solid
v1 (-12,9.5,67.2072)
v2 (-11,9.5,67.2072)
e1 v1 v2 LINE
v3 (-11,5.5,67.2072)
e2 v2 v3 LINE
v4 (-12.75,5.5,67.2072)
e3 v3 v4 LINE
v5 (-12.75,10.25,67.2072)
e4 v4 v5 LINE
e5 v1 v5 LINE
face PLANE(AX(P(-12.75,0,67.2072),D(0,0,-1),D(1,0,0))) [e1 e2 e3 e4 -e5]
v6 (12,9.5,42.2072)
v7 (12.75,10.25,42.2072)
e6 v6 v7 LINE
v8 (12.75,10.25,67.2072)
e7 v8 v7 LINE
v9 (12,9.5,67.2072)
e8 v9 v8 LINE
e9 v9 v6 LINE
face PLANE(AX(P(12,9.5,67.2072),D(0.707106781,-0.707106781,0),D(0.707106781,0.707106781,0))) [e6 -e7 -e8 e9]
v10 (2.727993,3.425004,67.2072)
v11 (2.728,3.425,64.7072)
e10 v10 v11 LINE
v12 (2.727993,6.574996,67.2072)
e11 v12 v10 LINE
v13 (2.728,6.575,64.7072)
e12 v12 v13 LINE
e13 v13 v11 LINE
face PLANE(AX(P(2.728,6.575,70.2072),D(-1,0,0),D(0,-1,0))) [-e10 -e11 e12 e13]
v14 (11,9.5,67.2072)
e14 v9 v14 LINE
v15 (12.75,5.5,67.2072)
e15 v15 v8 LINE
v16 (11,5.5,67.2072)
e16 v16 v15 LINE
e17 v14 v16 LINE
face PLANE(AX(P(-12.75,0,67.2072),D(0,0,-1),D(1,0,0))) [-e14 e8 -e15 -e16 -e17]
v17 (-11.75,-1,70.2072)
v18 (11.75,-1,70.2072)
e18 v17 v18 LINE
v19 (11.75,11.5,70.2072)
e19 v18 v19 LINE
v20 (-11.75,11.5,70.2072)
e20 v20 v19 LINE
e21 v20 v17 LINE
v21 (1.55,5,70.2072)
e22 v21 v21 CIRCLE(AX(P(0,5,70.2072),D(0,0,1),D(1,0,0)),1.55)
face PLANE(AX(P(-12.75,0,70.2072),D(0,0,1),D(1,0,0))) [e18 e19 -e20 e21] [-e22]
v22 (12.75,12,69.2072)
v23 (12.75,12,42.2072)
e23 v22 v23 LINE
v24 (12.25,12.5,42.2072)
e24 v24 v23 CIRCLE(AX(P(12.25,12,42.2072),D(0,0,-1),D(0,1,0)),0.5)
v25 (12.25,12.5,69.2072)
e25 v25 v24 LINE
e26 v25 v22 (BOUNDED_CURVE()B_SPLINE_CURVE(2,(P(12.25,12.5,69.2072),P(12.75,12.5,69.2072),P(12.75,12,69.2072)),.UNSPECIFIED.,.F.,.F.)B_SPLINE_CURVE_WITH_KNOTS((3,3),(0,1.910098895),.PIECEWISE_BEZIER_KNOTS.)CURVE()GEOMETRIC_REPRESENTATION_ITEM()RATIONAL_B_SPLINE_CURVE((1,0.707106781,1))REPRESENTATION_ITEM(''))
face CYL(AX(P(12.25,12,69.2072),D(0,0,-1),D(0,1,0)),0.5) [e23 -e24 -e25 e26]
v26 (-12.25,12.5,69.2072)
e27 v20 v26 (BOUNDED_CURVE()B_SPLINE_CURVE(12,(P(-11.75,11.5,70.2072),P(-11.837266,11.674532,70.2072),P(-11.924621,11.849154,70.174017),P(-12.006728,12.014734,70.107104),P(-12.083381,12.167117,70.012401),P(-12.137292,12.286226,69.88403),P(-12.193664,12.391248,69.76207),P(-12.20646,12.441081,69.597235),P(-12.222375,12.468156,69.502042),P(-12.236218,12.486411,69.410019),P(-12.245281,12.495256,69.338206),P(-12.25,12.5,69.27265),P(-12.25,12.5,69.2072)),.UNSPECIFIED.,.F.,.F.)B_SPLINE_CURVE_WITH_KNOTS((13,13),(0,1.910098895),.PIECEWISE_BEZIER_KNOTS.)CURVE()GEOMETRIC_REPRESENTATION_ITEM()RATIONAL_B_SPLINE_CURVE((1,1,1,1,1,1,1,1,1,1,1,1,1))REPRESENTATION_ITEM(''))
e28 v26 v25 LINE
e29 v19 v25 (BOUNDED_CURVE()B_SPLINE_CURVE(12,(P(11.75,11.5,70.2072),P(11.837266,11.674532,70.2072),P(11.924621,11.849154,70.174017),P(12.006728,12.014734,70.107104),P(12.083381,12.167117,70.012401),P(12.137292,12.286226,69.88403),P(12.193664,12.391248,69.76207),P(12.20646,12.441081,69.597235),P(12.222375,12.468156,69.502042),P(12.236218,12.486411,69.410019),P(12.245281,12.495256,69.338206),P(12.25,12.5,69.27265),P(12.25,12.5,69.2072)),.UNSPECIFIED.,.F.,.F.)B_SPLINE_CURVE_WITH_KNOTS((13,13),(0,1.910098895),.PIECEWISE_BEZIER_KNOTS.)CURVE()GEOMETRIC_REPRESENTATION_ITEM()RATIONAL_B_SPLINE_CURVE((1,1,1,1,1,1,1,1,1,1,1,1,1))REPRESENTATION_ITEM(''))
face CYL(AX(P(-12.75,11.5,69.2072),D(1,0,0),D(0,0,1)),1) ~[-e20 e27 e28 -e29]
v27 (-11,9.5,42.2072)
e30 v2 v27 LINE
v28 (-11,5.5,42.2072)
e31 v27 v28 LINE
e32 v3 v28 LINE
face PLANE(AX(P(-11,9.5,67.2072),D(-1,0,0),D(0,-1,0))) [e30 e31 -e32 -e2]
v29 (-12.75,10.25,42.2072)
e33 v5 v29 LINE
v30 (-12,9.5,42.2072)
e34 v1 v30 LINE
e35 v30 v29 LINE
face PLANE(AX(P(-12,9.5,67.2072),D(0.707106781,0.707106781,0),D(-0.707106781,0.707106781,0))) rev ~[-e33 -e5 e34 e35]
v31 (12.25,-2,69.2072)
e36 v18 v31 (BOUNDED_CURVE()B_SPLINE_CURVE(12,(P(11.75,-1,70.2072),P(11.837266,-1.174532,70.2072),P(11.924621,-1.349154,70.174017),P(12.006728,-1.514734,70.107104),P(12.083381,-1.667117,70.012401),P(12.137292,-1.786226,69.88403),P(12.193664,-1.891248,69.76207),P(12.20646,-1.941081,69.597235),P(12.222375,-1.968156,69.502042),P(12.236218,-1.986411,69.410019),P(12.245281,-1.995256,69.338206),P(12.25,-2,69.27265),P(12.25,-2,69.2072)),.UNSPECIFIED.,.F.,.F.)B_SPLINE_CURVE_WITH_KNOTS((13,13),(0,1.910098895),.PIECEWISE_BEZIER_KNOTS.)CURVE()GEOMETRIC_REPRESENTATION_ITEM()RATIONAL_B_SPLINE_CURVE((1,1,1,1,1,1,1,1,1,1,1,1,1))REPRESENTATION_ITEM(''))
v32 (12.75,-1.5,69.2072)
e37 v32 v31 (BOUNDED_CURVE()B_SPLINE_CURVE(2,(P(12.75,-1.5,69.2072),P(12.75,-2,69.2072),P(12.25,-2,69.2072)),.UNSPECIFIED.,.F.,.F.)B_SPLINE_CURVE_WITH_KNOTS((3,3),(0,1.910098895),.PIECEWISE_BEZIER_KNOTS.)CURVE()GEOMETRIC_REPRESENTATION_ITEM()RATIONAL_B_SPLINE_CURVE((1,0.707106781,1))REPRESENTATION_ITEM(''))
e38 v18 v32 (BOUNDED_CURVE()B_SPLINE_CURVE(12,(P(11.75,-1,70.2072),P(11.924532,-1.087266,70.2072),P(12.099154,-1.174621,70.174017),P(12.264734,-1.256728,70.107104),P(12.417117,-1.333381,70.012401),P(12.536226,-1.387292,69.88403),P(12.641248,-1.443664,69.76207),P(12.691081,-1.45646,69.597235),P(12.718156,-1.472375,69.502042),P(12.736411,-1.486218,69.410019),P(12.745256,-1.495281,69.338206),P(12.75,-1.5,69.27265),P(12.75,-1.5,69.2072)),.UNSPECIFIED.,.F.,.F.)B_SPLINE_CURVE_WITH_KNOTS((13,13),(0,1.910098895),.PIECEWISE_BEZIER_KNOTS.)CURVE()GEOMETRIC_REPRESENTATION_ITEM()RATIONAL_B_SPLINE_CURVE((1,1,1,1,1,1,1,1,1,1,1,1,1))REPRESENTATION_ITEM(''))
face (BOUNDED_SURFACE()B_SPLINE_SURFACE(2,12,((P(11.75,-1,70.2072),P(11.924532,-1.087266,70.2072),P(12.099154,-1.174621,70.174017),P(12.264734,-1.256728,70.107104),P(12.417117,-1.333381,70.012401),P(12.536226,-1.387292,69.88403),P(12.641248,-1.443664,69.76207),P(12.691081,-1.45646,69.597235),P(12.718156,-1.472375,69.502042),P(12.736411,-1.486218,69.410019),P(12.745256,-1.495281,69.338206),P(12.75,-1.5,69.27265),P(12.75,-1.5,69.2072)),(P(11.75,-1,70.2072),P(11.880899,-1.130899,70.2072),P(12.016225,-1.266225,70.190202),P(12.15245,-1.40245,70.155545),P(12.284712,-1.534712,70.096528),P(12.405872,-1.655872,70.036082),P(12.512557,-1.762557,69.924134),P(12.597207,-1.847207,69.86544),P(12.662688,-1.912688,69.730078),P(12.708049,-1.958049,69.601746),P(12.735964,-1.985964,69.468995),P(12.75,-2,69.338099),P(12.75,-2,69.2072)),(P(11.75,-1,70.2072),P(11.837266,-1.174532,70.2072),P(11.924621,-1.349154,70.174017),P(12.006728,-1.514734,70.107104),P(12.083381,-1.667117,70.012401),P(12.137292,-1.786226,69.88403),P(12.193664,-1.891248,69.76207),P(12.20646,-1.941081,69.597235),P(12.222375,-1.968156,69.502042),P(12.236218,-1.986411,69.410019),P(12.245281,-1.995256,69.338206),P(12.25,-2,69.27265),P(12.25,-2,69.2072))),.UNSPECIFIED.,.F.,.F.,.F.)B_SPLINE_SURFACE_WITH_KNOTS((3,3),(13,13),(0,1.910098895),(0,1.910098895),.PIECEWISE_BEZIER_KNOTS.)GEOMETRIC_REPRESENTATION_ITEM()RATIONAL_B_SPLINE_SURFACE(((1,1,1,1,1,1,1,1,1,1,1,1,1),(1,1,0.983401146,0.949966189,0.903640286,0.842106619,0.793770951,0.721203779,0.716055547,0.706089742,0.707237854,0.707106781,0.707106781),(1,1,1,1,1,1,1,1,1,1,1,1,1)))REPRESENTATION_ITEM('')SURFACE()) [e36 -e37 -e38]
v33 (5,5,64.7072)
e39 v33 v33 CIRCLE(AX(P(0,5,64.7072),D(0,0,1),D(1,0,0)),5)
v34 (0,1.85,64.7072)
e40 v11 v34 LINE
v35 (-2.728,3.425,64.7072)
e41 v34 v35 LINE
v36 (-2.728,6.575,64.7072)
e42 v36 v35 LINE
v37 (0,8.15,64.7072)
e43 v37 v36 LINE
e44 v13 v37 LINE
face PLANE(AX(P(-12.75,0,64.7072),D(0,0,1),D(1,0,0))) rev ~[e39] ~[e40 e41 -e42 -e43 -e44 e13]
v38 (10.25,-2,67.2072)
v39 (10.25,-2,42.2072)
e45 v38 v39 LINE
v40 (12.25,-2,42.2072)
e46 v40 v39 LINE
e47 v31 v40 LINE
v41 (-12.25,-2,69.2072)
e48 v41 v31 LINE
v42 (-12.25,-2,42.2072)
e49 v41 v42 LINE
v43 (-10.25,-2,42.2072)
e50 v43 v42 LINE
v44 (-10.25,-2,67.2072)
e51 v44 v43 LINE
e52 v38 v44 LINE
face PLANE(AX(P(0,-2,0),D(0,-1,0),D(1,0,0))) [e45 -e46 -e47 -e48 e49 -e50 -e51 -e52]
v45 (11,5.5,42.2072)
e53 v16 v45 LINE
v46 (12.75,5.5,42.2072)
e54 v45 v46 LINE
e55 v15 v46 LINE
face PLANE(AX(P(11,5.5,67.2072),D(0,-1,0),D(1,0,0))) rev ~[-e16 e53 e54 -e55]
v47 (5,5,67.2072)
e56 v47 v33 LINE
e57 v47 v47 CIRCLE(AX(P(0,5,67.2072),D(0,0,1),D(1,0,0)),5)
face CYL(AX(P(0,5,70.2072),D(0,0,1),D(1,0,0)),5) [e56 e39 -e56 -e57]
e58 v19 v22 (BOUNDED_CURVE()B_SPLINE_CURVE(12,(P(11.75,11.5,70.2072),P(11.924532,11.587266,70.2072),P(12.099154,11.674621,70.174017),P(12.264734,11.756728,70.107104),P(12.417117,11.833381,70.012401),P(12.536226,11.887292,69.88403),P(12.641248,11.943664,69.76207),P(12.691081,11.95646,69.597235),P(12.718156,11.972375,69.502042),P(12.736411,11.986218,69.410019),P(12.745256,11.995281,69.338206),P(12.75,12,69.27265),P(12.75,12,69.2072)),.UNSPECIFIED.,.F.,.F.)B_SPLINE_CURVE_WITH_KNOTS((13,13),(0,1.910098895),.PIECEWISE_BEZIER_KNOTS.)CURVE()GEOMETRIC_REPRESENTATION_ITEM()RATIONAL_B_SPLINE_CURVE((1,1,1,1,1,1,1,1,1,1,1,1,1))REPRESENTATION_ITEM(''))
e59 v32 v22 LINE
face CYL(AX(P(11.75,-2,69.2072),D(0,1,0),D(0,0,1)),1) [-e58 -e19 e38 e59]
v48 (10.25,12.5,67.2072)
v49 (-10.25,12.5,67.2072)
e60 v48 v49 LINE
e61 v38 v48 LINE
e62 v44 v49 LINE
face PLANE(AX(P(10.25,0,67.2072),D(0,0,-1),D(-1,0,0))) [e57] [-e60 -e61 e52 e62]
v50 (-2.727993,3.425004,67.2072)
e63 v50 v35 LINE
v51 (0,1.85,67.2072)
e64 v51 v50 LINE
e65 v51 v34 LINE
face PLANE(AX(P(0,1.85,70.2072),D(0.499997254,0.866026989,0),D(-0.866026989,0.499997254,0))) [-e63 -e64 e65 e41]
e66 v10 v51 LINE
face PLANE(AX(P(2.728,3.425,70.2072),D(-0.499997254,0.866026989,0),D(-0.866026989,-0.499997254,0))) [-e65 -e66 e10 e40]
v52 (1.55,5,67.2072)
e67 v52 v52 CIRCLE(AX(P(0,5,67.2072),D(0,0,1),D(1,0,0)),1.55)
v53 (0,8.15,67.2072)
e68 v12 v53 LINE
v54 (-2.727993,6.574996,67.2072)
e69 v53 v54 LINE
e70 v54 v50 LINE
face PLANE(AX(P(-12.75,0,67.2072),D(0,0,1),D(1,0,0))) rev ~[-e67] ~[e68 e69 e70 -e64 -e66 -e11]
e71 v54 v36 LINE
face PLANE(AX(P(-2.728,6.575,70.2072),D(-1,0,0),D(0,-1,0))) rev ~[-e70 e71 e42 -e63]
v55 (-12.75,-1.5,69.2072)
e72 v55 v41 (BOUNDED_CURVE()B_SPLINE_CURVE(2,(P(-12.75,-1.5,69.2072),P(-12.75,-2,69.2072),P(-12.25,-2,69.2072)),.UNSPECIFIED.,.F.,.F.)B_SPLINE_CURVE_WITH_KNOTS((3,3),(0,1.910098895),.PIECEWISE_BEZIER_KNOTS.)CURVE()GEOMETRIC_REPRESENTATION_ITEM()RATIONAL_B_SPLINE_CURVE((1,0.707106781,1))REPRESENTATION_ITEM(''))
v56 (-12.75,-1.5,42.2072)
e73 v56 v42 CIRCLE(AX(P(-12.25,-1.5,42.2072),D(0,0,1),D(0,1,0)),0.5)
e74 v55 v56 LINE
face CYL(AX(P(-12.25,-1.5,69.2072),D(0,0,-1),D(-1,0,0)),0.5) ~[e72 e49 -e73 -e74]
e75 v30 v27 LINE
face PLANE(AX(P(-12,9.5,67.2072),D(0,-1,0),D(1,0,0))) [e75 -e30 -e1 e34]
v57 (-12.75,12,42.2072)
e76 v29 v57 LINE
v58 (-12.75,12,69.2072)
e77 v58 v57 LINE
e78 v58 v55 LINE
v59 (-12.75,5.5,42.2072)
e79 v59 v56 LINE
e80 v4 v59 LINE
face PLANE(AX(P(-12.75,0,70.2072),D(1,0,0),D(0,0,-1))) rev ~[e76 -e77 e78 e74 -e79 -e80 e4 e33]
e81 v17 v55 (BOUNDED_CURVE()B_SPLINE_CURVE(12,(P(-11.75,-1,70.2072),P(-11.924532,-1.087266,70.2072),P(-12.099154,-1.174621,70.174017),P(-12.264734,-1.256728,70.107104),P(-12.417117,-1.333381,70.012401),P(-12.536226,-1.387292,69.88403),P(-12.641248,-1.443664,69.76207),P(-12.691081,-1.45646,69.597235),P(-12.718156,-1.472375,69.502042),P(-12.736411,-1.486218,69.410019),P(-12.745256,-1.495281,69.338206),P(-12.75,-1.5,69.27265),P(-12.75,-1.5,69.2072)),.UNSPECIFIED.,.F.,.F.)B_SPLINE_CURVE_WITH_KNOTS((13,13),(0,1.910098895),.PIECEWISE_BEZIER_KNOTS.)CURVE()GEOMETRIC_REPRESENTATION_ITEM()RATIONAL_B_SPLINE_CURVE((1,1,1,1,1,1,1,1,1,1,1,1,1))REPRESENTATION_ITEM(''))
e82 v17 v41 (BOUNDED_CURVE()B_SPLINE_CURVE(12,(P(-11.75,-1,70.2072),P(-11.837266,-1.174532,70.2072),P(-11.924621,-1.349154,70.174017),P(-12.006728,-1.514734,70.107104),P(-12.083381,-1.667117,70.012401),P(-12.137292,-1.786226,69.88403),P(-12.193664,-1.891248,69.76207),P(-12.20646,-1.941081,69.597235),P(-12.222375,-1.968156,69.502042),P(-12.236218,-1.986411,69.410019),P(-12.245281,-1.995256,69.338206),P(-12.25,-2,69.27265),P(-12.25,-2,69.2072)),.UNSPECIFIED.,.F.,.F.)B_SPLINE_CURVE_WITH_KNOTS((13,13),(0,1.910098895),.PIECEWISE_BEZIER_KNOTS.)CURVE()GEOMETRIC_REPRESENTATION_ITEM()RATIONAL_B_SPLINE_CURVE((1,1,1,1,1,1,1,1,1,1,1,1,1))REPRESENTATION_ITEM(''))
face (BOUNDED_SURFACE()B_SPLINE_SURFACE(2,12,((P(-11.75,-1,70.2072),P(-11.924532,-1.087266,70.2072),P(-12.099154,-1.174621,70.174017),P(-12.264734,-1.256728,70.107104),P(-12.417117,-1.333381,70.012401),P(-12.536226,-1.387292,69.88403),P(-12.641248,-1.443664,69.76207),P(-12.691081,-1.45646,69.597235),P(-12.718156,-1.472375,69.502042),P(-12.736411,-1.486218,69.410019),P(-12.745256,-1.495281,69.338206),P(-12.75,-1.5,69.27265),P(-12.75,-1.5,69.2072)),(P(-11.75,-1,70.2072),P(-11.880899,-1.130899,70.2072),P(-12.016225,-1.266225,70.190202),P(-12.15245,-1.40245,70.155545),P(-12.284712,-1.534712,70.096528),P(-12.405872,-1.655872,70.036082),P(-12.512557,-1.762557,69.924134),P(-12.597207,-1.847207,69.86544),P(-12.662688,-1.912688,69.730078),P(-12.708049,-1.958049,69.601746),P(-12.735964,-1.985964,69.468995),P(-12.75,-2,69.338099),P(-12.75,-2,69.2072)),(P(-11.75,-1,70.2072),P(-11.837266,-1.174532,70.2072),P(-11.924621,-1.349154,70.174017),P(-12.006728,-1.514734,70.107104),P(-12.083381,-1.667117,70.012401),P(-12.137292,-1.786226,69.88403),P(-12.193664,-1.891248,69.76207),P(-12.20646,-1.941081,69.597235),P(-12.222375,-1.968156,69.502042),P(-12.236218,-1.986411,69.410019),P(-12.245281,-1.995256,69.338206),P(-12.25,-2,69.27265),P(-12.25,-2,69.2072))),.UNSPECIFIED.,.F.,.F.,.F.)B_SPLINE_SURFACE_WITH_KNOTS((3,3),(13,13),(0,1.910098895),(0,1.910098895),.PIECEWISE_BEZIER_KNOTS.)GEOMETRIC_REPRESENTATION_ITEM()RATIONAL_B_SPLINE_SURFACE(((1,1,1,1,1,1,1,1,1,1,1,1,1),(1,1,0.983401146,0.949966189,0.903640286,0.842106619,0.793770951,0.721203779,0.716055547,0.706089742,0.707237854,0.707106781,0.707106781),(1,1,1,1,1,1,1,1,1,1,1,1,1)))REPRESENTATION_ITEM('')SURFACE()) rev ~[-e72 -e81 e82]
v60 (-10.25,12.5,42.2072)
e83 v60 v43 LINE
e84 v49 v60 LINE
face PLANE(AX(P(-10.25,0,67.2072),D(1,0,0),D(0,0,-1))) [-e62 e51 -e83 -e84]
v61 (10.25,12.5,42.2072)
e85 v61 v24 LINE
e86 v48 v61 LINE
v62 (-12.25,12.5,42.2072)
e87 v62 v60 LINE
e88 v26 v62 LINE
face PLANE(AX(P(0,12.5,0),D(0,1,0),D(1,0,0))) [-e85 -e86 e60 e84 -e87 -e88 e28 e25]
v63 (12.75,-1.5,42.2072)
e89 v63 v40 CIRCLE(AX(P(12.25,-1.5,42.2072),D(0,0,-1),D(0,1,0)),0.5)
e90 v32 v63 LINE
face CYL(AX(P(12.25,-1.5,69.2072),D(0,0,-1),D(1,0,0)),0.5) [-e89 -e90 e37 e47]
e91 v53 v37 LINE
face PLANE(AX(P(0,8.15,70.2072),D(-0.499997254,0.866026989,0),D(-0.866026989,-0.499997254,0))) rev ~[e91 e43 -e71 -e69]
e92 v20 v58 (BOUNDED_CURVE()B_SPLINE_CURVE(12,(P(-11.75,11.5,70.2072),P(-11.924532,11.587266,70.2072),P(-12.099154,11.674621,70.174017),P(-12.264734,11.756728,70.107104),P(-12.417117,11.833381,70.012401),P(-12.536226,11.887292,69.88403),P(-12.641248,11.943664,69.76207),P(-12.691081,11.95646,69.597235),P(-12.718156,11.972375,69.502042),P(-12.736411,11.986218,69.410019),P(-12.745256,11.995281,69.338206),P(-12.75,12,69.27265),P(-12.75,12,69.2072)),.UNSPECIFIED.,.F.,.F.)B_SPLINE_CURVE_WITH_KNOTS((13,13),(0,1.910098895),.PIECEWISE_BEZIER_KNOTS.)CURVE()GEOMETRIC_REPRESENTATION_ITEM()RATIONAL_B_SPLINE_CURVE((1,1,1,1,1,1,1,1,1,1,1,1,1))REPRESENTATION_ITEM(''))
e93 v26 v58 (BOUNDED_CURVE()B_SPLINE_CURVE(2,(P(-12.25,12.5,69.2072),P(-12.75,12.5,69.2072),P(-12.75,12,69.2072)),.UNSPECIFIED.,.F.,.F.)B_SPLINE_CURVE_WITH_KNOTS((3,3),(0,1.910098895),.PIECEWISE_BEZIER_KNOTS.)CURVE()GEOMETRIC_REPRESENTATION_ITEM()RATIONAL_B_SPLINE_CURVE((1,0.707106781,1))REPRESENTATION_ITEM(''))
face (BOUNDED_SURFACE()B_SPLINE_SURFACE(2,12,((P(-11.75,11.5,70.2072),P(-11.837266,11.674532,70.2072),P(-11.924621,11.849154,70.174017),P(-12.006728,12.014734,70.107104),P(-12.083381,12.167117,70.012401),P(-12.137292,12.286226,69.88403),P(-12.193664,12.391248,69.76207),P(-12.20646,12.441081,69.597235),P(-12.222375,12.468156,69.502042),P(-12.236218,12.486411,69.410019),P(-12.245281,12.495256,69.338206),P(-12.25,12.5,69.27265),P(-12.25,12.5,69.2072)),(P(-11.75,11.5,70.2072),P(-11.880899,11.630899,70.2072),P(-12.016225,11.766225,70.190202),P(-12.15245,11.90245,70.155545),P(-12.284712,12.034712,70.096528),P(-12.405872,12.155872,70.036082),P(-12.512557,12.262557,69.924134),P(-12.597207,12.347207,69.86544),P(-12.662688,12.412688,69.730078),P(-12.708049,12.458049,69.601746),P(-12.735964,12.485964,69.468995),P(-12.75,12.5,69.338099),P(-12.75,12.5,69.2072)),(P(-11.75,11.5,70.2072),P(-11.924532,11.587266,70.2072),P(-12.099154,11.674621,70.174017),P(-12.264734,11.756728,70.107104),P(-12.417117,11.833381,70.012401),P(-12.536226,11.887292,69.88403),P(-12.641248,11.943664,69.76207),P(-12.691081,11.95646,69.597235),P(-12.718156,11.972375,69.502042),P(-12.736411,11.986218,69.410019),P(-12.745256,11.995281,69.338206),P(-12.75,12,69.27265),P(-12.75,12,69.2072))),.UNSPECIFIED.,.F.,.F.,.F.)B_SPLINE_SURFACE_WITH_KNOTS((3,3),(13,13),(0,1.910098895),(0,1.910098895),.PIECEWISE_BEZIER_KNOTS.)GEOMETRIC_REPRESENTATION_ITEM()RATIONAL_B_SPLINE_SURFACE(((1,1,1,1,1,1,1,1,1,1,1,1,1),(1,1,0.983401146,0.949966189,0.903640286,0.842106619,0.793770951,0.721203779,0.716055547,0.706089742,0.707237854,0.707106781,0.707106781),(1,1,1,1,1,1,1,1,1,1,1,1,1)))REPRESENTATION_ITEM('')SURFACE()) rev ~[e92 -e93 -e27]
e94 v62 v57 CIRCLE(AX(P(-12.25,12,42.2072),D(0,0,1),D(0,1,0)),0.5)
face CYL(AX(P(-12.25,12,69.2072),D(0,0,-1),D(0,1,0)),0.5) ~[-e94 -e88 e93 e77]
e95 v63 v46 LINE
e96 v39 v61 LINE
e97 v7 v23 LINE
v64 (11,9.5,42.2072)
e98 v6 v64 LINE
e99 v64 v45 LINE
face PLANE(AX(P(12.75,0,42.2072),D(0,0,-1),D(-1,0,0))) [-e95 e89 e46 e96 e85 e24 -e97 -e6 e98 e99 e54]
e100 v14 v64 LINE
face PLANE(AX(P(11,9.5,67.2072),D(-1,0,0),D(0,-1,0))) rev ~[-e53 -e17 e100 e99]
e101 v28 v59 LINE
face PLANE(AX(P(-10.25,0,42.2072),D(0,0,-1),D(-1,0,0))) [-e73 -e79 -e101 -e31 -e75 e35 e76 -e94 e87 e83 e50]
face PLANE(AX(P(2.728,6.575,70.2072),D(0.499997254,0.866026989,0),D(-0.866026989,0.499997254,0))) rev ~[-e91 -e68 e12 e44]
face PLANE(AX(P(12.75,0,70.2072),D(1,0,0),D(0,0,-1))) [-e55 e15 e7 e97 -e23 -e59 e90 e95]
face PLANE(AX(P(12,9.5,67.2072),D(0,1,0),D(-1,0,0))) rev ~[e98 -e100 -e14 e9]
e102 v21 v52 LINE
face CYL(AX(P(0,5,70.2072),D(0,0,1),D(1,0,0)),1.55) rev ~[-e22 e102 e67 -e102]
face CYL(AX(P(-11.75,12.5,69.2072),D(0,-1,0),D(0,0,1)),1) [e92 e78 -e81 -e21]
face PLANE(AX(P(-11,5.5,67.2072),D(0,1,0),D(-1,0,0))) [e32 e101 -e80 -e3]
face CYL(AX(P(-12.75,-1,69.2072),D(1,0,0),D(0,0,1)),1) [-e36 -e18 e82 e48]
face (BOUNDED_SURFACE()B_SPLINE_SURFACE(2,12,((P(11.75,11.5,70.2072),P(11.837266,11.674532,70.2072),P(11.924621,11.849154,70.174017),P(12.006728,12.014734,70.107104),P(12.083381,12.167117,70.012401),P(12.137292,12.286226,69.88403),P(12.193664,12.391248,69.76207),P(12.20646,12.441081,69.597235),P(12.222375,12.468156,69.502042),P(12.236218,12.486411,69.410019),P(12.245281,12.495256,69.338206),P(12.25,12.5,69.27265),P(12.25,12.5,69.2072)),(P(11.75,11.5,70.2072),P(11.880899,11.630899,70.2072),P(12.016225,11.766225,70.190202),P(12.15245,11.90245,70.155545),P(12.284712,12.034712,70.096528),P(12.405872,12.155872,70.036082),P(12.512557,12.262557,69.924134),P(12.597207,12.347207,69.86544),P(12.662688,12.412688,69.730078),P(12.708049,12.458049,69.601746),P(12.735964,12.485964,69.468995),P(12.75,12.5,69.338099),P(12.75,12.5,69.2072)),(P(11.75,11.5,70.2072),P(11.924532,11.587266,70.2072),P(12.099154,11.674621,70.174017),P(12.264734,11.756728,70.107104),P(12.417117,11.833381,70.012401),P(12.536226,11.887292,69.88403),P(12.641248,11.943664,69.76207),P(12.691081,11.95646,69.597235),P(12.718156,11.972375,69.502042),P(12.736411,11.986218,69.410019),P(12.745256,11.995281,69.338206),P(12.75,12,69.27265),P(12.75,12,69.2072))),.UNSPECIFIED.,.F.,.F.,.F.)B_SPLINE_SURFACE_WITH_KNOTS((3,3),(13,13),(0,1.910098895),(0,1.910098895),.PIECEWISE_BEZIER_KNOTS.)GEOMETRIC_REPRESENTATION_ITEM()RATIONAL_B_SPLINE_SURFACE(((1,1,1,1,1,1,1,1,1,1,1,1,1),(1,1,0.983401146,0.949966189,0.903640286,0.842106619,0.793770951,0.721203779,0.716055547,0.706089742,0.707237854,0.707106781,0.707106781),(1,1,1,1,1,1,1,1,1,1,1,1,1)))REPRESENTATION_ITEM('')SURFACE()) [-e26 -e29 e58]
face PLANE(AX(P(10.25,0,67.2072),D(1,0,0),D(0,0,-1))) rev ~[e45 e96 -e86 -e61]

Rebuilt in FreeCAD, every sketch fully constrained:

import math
import FreeCAD as App
import Part
import Sketcher
Q = App.Units.Quantity


def edges_at(feature, points):
    """Names of the edges that pass closest to the given points."""
    edges = feature.Shape.Edges
    near = lambda p: min(range(len(edges)), key=lambda i: edges[i].distToShape(Part.Vertex(*p))[0])
    return sorted({f"Edge{near(p) + 1}" for p in points})

doc = App.newDocument("Part")
params = doc.addObject("Spreadsheet::Sheet", "Params")
for row, (alias, value) in enumerate([
    ("sketch1_height", "3 mm"),
    ("sketch1_width", "25.5 mm"),
    ("pad1_length", "14 mm"),
    ("sketch2_height", "5.5 mm"),
    ("sketch2_width", "1 mm"),
    ("sketch2_height2", "4 mm"),
    ("sketch2_height3", "14 mm"),
    ("sketch2_width2", "2.5 mm"),
    ("pad2_length", "25 mm"),
    ("sketch3_diameter", "3.1 mm"),
    ("pocket1_length", "5.5 mm"),
    ("sketch4_diameter", "3.1 mm"),
    ("sketch4_height", "3.15 mm"),
    ("pocket2_length", "5.5 mm"),
    ("sketch5_height", "28 mm"),
    ("sketch5_height2", "25 mm"),
    ("sketch5_width", "25.5 mm"),
    ("sketch5_width2", "2.5 mm"),
    ("pad3_length", "2 mm"),
    ("sketch6_diameter", "10 mm"),
    ("sketch6_diameter2", "6.3 mm"),
    ("pad4_length", "5.5 mm"),
    ("sketch7_diameter", "3.1 mm"),
    ("sketch7_height", "3.15 mm"),
    ("pad5_length", "3 mm"),
    ("sketch8_radius", "3.15 mm"),
    ("pad6_length", "5.5 mm"),
    ("sketch9_height", "28 mm"),
    ("sketch9_height2", "25 mm"),
    ("sketch9_width", "25.5 mm"),
    ("sketch9_width2", "2.5 mm"),
    ("pocket3_length", "1.5 mm"),
    ("fillet_radius", "1 mm"),
    ("fillet2_radius", "0.5 mm"),
], start=1):
    params.set(f"A{row}", alias)
    params.set(f"B{row}", "=" + value)
    params.setAlias(f"B{row}", alias)

body = doc.addObject("PartDesign::Body", "Body")

# Sketch on XZ plane
sketch1 = body.newObject("Sketcher::SketchObject", "Sketch")
sketch1.AttachmentSupport = (doc.getObject("XZ_Plane"), [""])
sketch1.MapMode = "FlatFace"
sketch1.addGeometry(Part.LineSegment(App.Vector(12.75, 70.2072, 0), App.Vector(12.75, 67.2072, 0)), False)
sketch1.addGeometry(Part.LineSegment(App.Vector(12.75, 67.2072, 0), App.Vector(-12.75, 67.2072, 0)), False)
sketch1.addGeometry(Part.LineSegment(App.Vector(-12.75, 67.2072, 0), App.Vector(-12.75, 70.2072, 0)), False)
sketch1.addGeometry(Part.LineSegment(App.Vector(-12.75, 70.2072, 0), App.Vector(12.75, 70.2072, 0)), False)
sketch1.addConstraint(Sketcher.Constraint("Coincident", 0, 2, 1, 1))
sketch1.addConstraint(Sketcher.Constraint("Coincident", 1, 2, 2, 1))
sketch1.addConstraint(Sketcher.Constraint("Coincident", 2, 2, 3, 1))
sketch1.addConstraint(Sketcher.Constraint("Coincident", 3, 2, 0, 1))
sketch1.addConstraint(Sketcher.Constraint("Vertical", 0))
sketch1.addConstraint(Sketcher.Constraint("Horizontal", 1))
sketch1.addConstraint(Sketcher.Constraint("Vertical", 2))
sketch1.addConstraint(Sketcher.Constraint("Horizontal", 3))
sketch1.addConstraint(Sketcher.Constraint("DistanceY", 0, 2, 0, 1, 3.0))
sketch1.addConstraint(Sketcher.Constraint("DistanceX", 1, 2, 1, 1, 25.5))
sketch1.addConstraint(Sketcher.Constraint("DistanceX", -1, 1, 0, 2, 12.75))
sketch1.addConstraint(Sketcher.Constraint("DistanceY", -1, 1, 0, 2, 67.2072))
sketch1.setExpression("Constraints[8]", "Params.sketch1_height")
sketch1.setExpression("Constraints[9]", "Params.sketch1_width")
pad1 = body.newObject("PartDesign::Pad", "Pad")
pad1.Profile = sketch1
pad1.setExpression("Length", "Params.pad1_length")
pad1.Reversed = True

# Sketch on XY plane
sketch2 = body.newObject("Sketcher::SketchObject", "Sketch001")
sketch2.AttachmentSupport = (doc.getObject("XY_Plane"), [""])
sketch2.MapMode = "FlatFace"
sketch2.AttachmentOffset = App.Placement(App.Vector(0, 0, 67.2072), App.Rotation())
sketch2.addGeometry(Part.LineSegment(App.Vector(10.25, 14, 0), App.Vector(12.75, 14, 0)), False)
sketch2.addGeometry(Part.LineSegment(App.Vector(12.75, 14, 0), App.Vector(12.75, 10.25, 0)), False)
sketch2.addGeometry(Part.LineSegment(App.Vector(12.75, 10.25, 0), App.Vector(12, 9.5, 0)), False)
sketch2.addGeometry(Part.LineSegment(App.Vector(12, 9.5, 0), App.Vector(11, 9.5, 0)), False)
sketch2.addGeometry(Part.LineSegment(App.Vector(11, 9.5, 0), App.Vector(11, 5.5, 0)), False)
sketch2.addGeometry(Part.LineSegment(App.Vector(11, 5.5, 0), App.Vector(12.75, 5.5, 0)), False)
sketch2.addGeometry(Part.LineSegment(App.Vector(12.75, 5.5, 0), App.Vector(12.75, 0, 0)), False)
sketch2.addGeometry(Part.LineSegment(App.Vector(12.75, 0, 0), App.Vector(10.25, 0, 0)), False)
sketch2.addGeometry(Part.LineSegment(App.Vector(10.25, 0, 0), App.Vector(10.25, 14, 0)), False)
sketch2.addGeometry(Part.LineSegment(App.Vector(-12.75, 10.25, 0), App.Vector(-12.75, 14, 0)), False)
sketch2.addGeometry(Part.LineSegment(App.Vector(-12.75, 14, 0), App.Vector(-10.25, 14, 0)), False)
sketch2.addGeometry(Part.LineSegment(App.Vector(-10.25, 14, 0), App.Vector(-10.25, 0, 0)), False)
sketch2.addGeometry(Part.LineSegment(App.Vector(-10.25, 0, 0), App.Vector(-12.75, 0, 0)), False)
sketch2.addGeometry(Part.LineSegment(App.Vector(-12.75, 0, 0), App.Vector(-12.75, 5.5, 0)), False)
sketch2.addGeometry(Part.LineSegment(App.Vector(-12.75, 5.5, 0), App.Vector(-11, 5.5, 0)), False)
sketch2.addGeometry(Part.LineSegment(App.Vector(-11, 5.5, 0), App.Vector(-11, 9.5, 0)), False)
sketch2.addGeometry(Part.LineSegment(App.Vector(-11, 9.5, 0), App.Vector(-12, 9.5, 0)), False)
sketch2.addGeometry(Part.LineSegment(App.Vector(-12, 9.5, 0), App.Vector(-12.75, 10.25, 0)), False)
sketch2.addConstraint(Sketcher.Constraint("Coincident", 0, 2, 1, 1))
sketch2.addConstraint(Sketcher.Constraint("Coincident", 1, 2, 2, 1))
sketch2.addConstraint(Sketcher.Constraint("Coincident", 2, 2, 3, 1))
sketch2.addConstraint(Sketcher.Constraint("Coincident", 3, 2, 4, 1))
sketch2.addConstraint(Sketcher.Constraint("Coincident", 4, 2, 5, 1))
sketch2.addConstraint(Sketcher.Constraint("Coincident", 5, 2, 6, 1))
sketch2.addConstraint(Sketcher.Constraint("Coincident", 6, 2, 7, 1))
sketch2.addConstraint(Sketcher.Constraint("Coincident", 7, 2, 8, 1))
sketch2.addConstraint(Sketcher.Constraint("Coincident", 8, 2, 0, 1))
sketch2.addConstraint(Sketcher.Constraint("Coincident", 9, 2, 10, 1))
sketch2.addConstraint(Sketcher.Constraint("Coincident", 10, 2, 11, 1))
sketch2.addConstraint(Sketcher.Constraint("Coincident", 11, 2, 12, 1))
sketch2.addConstraint(Sketcher.Constraint("Coincident", 12, 2, 13, 1))
sketch2.addConstraint(Sketcher.Constraint("Coincident", 13, 2, 14, 1))
sketch2.addConstraint(Sketcher.Constraint("Coincident", 14, 2, 15, 1))
sketch2.addConstraint(Sketcher.Constraint("Coincident", 15, 2, 16, 1))
sketch2.addConstraint(Sketcher.Constraint("Coincident", 16, 2, 17, 1))
sketch2.addConstraint(Sketcher.Constraint("Coincident", 17, 2, 9, 1))
sketch2.addConstraint(Sketcher.Constraint("Horizontal", 0))
sketch2.addConstraint(Sketcher.Constraint("Vertical", 1))
sketch2.addConstraint(Sketcher.Constraint("Horizontal", 3))
sketch2.addConstraint(Sketcher.Constraint("Vertical", 4))
sketch2.addConstraint(Sketcher.Constraint("Horizontal", 5))
sketch2.addConstraint(Sketcher.Constraint("Vertical", 6))
sketch2.addConstraint(Sketcher.Constraint("Horizontal", 7))
sketch2.addConstraint(Sketcher.Constraint("Vertical", 8))
sketch2.addConstraint(Sketcher.Constraint("Vertical", 9))
sketch2.addConstraint(Sketcher.Constraint("Horizontal", 10))
sketch2.addConstraint(Sketcher.Constraint("Vertical", 11))
sketch2.addConstraint(Sketcher.Constraint("Horizontal", 12))
sketch2.addConstraint(Sketcher.Constraint("Vertical", 13))
sketch2.addConstraint(Sketcher.Constraint("Horizontal", 14))
sketch2.addConstraint(Sketcher.Constraint("Vertical", 15))
sketch2.addConstraint(Sketcher.Constraint("Horizontal", 16))
sketch2.addConstraint(Sketcher.Constraint("Symmetric", 7, 2, 11, 2, -1, 1))
sketch2.addConstraint(Sketcher.Constraint("Symmetric", 0, 2, 9, 2, -2))
sketch2.addConstraint(Sketcher.Constraint("Symmetric", 6, 2, 12, 2, -2))
sketch2.addConstraint(Sketcher.Constraint("Symmetric", 4, 2, 14, 2, -2))
sketch2.addConstraint(Sketcher.Constraint("Symmetric", 2, 2, 16, 2, -2))
sketch2.addConstraint(Sketcher.Constraint("Perpendicular", 2, 17))
sketch2.addConstraint(Sketcher.Constraint("Horizontal", 1, 2, 17, 2))
sketch2.addConstraint(Sketcher.Constraint("Vertical", 1, 2, 5, 2))
sketch2.addConstraint(Sketcher.Constraint("DistanceY", 6, 2, 6, 1, 5.5))
sketch2.addConstraint(Sketcher.Constraint("DistanceX", 10, 2, 8, 2, 20.5))
sketch2.addConstraint(Sketcher.Constraint("DistanceX", 3, 2, 3, 1, 1.0))
sketch2.addConstraint(Sketcher.Constraint("DistanceY", 4, 2, 4, 1, 4.0))
sketch2.addConstraint(Sketcher.Constraint("DistanceY", 8, 1, 8, 2, 14.0))
sketch2.addConstraint(Sketcher.Constraint("DistanceX", 0, 1, 0, 2, 2.5))
sketch2.addConstraint(Sketcher.Constraint("DistanceX", -1, 1, 2, 2, 12.0))
sketch2.setExpression("Constraints[42]", "Params.sketch2_height")
sketch2.setExpression("Constraints[44]", "Params.sketch2_width")
sketch2.setExpression("Constraints[45]", "Params.sketch2_height2")
sketch2.setExpression("Constraints[46]", "Params.sketch2_height3")
sketch2.setExpression("Constraints[47]", "Params.sketch2_width2")
pad2 = body.newObject("PartDesign::Pad", "Pad001")
pad2.Profile = sketch2
pad2.setExpression("Length", "Params.pad2_length")
pad2.Reversed = True

# Sketch on XY plane
sketch3 = body.newObject("Sketcher::SketchObject", "Sketch002")
sketch3.AttachmentSupport = (doc.getObject("XY_Plane"), [""])
sketch3.MapMode = "FlatFace"
sketch3.AttachmentOffset = App.Placement(App.Vector(0, 0, 70.2072), App.Rotation())
sketch3.addGeometry(Part.Circle(App.Vector(0, 5, 0), App.Vector(0, 0, 1), 1.55), False)
sketch3.addConstraint(Sketcher.Constraint("PointOnObject", 0, 3, -2))
sketch3.addConstraint(Sketcher.Constraint("Diameter", 0, 3.1))
sketch3.addConstraint(Sketcher.Constraint("DistanceY", -1, 1, 0, 3, 5.0))
sketch3.setExpression("Constraints[1]", "Params.sketch3_diameter")
pocket1 = body.newObject("PartDesign::Pocket", "Pocket")
pocket1.Profile = sketch3
pocket1.setExpression("Length", "Params.pocket1_length")

# Sketch on XY plane
sketch4 = body.newObject("Sketcher::SketchObject", "Sketch003")
sketch4.AttachmentSupport = (doc.getObject("XY_Plane"), [""])
sketch4.MapMode = "FlatFace"
sketch4.AttachmentOffset = App.Placement(App.Vector(0, 0, 70.2072), App.Rotation())
sketch4.addGeometry(Part.LineSegment(App.Vector(2.728, 3.425, 0), App.Vector(2.728, 6.575, 0)), False)
sketch4.addGeometry(Part.LineSegment(App.Vector(2.728, 6.575, 0), App.Vector(0, 8.15, 0)), False)
sketch4.addGeometry(Part.LineSegment(App.Vector(0, 8.15, 0), App.Vector(-2.728, 6.575, 0)), False)
sketch4.addGeometry(Part.LineSegment(App.Vector(-2.728, 6.575, 0), App.Vector(-2.728, 3.425, 0)), False)
sketch4.addGeometry(Part.LineSegment(App.Vector(-2.728, 3.425, 0), App.Vector(0, 1.85, 0)), False)
sketch4.addGeometry(Part.LineSegment(App.Vector(0, 1.85, 0), App.Vector(2.728, 3.425, 0)), False)
sketch4.addGeometry(Part.Circle(App.Vector(0, 5, 0), App.Vector(0, 0, 1), 1.55), False)
sketch4.addConstraint(Sketcher.Constraint("Coincident", 0, 2, 1, 1))
sketch4.addConstraint(Sketcher.Constraint("Coincident", 1, 2, 2, 1))
sketch4.addConstraint(Sketcher.Constraint("Coincident", 2, 2, 3, 1))
sketch4.addConstraint(Sketcher.Constraint("Coincident", 3, 2, 4, 1))
sketch4.addConstraint(Sketcher.Constraint("Coincident", 4, 2, 5, 1))
sketch4.addConstraint(Sketcher.Constraint("Coincident", 5, 2, 0, 1))
sketch4.addConstraint(Sketcher.Constraint("Vertical", 0))
sketch4.addConstraint(Sketcher.Constraint("Vertical", 3))
sketch4.addConstraint(Sketcher.Constraint("Symmetric", 0, 2, 2, 2, -2))
sketch4.addConstraint(Sketcher.Constraint("PointOnObject", 6, 3, -2))
sketch4.addConstraint(Sketcher.Constraint("PointOnObject", 1, 2, -2))
sketch4.addConstraint(Sketcher.Constraint("PointOnObject", 4, 2, -2))
sketch4.addConstraint(Sketcher.Constraint("Parallel", 1, 4))
sketch4.addConstraint(Sketcher.Constraint("Parallel", 2, 5))
sketch4.addConstraint(Sketcher.Constraint("Diameter", 6, 3.1))
sketch4.addConstraint(Sketcher.Constraint("DistanceY", -1, 1, 6, 3, 5.0))
sketch4.addConstraint(Sketcher.Constraint("DistanceY", 4, 2, 1, 2, 6.3))
sketch4.addConstraint(Sketcher.Constraint("Angle", 1, Q("150.0002 deg")))
sketch4.addConstraint(Sketcher.Constraint("DistanceY", 0, 1, 0, 2, 3.15))
sketch4.addConstraint(Sketcher.Constraint("DistanceY", -1, 1, 1, 2, 8.15))
sketch4.setExpression("Constraints[14]", "Params.sketch4_diameter")
sketch4.setExpression("Constraints[18]", "Params.sketch4_height")
pocket2 = body.newObject("PartDesign::Pocket", "Pocket001")
pocket2.Profile = sketch4
pocket2.setExpression("Length", "Params.pocket2_length")

# Sketch on XZ plane
sketch5 = body.newObject("Sketcher::SketchObject", "Sketch004")
sketch5.AttachmentSupport = (doc.getObject("XZ_Plane"), [""])
sketch5.MapMode = "FlatFace"
sketch5.addGeometry(Part.LineSegment(App.Vector(12.75, 70.2072, 0), App.Vector(-12.75, 70.2072, 0)), False)
sketch5.addGeometry(Part.LineSegment(App.Vector(-12.75, 70.2072, 0), App.Vector(-12.75, 42.2072, 0)), False)
sketch5.addGeometry(Part.LineSegment(App.Vector(-12.75, 42.2072, 0), App.Vector(-10.25, 42.2072, 0)), False)
sketch5.addGeometry(Part.LineSegment(App.Vector(-10.25, 42.2072, 0), App.Vector(-10.25, 67.2072, 0)), False)
sketch5.addGeometry(Part.LineSegment(App.Vector(-10.25, 67.2072, 0), App.Vector(10.25, 67.2072, 0)), False)
sketch5.addGeometry(Part.LineSegment(App.Vector(10.25, 67.2072, 0), App.Vector(10.25, 42.2072, 0)), False)
sketch5.addGeometry(Part.LineSegment(App.Vector(10.25, 42.2072, 0), App.Vector(12.75, 42.2072, 0)), False)
sketch5.addGeometry(Part.LineSegment(App.Vector(12.75, 42.2072, 0), App.Vector(12.75, 70.2072, 0)), False)
sketch5.addConstraint(Sketcher.Constraint("Coincident", 0, 2, 1, 1))
sketch5.addConstraint(Sketcher.Constraint("Coincident", 1, 2, 2, 1))
sketch5.addConstraint(Sketcher.Constraint("Coincident", 2, 2, 3, 1))
sketch5.addConstraint(Sketcher.Constraint("Coincident", 3, 2, 4, 1))
sketch5.addConstraint(Sketcher.Constraint("Coincident", 4, 2, 5, 1))
sketch5.addConstraint(Sketcher.Constraint("Coincident", 5, 2, 6, 1))
sketch5.addConstraint(Sketcher.Constraint("Coincident", 6, 2, 7, 1))
sketch5.addConstraint(Sketcher.Constraint("Coincident", 7, 2, 0, 1))
sketch5.addConstraint(Sketcher.Constraint("Horizontal", 0))
sketch5.addConstraint(Sketcher.Constraint("Vertical", 1))
sketch5.addConstraint(Sketcher.Constraint("Horizontal", 2))
sketch5.addConstraint(Sketcher.Constraint("Vertical", 3))
sketch5.addConstraint(Sketcher.Constraint("Horizontal", 4))
sketch5.addConstraint(Sketcher.Constraint("Vertical", 5))
sketch5.addConstraint(Sketcher.Constraint("Horizontal", 6))
sketch5.addConstraint(Sketcher.Constraint("Vertical", 7))
sketch5.addConstraint(Sketcher.Constraint("Symmetric", 2, 2, 5, 2, -2))
sketch5.addConstraint(Sketcher.Constraint("Equal", 2, 6))
sketch5.addConstraint(Sketcher.Constraint("DistanceY", 1, 2, 1, 1, 28.0))
sketch5.addConstraint(Sketcher.Constraint("DistanceY", 3, 1, 3, 2, 25.0))
sketch5.addConstraint(Sketcher.Constraint("DistanceX", 0, 2, 0, 1, 25.5))
sketch5.addConstraint(Sketcher.Constraint("DistanceX", 2, 1, 2, 2, 2.5))
sketch5.addConstraint(Sketcher.Constraint("DistanceY", -1, 1, 0, 2, 70.2072))
sketch5.setExpression("Constraints[18]", "Params.sketch5_height")
sketch5.setExpression("Constraints[19]", "Params.sketch5_height2")
sketch5.setExpression("Constraints[20]", "Params.sketch5_width")
sketch5.setExpression("Constraints[21]", "Params.sketch5_width2")
pad3 = body.newObject("PartDesign::Pad", "Pad002")
pad3.Profile = sketch5
pad3.setExpression("Length", "Params.pad3_length")

# Sketch on XY plane
sketch6 = body.newObject("Sketcher::SketchObject", "Sketch005")
sketch6.AttachmentSupport = (doc.getObject("XY_Plane"), [""])
sketch6.MapMode = "FlatFace"
sketch6.AttachmentOffset = App.Placement(App.Vector(0, 0, 70.2072), App.Rotation())
sketch6.addGeometry(Part.Circle(App.Vector(0, 5, 0), App.Vector(0, 0, 1), 5), False)
sketch6.addGeometry(Part.Circle(App.Vector(0, 5, 0), App.Vector(0, 0, 1), 3.15), False)
sketch6.addConstraint(Sketcher.Constraint("Coincident", 1, 3, 0, 3))
sketch6.addConstraint(Sketcher.Constraint("PointOnObject", 0, 3, -2))
sketch6.addConstraint(Sketcher.Constraint("Diameter", 0, 10.0))
sketch6.addConstraint(Sketcher.Constraint("Diameter", 1, 6.3))
sketch6.addConstraint(Sketcher.Constraint("DistanceY", -1, 1, 0, 3, 5.0))
sketch6.setExpression("Constraints[2]", "Params.sketch6_diameter")
sketch6.setExpression("Constraints[3]", "Params.sketch6_diameter2")
pad4 = body.newObject("PartDesign::Pad", "Pad003")
pad4.Profile = sketch6
pad4.setExpression("Length", "Params.pad4_length")
pad4.Reversed = True

# Sketch on XY plane
sketch7 = body.newObject("Sketcher::SketchObject", "Sketch006")
sketch7.AttachmentSupport = (doc.getObject("XY_Plane"), [""])
sketch7.MapMode = "FlatFace"
sketch7.AttachmentOffset = App.Placement(App.Vector(0, 0, 70.2072), App.Rotation())
sketch7.addGeometry(Part.LineSegment(App.Vector(2.728, 3.425, 0), App.Vector(2.728, 6.575, 0)), False)
sketch7.addGeometry(Part.LineSegment(App.Vector(2.728, 6.575, 0), App.Vector(0, 8.15, 0)), False)
sketch7.addGeometry(Part.LineSegment(App.Vector(0, 8.15, 0), App.Vector(-2.728, 6.575, 0)), False)
sketch7.addGeometry(Part.LineSegment(App.Vector(-2.728, 6.575, 0), App.Vector(-2.728, 3.425, 0)), False)
sketch7.addGeometry(Part.LineSegment(App.Vector(-2.728, 3.425, 0), App.Vector(0, 1.85, 0)), False)
sketch7.addGeometry(Part.LineSegment(App.Vector(0, 1.85, 0), App.Vector(2.728, 3.425, 0)), False)
sketch7.addGeometry(Part.Circle(App.Vector(0, 5, 0), App.Vector(0, 0, 1), 1.55), False)
sketch7.addConstraint(Sketcher.Constraint("Coincident", 0, 2, 1, 1))
sketch7.addConstraint(Sketcher.Constraint("Coincident", 1, 2, 2, 1))
sketch7.addConstraint(Sketcher.Constraint("Coincident", 2, 2, 3, 1))
sketch7.addConstraint(Sketcher.Constraint("Coincident", 3, 2, 4, 1))
sketch7.addConstraint(Sketcher.Constraint("Coincident", 4, 2, 5, 1))
sketch7.addConstraint(Sketcher.Constraint("Coincident", 5, 2, 0, 1))
sketch7.addConstraint(Sketcher.Constraint("Vertical", 0))
sketch7.addConstraint(Sketcher.Constraint("Vertical", 3))
sketch7.addConstraint(Sketcher.Constraint("Symmetric", 0, 2, 2, 2, -2))
sketch7.addConstraint(Sketcher.Constraint("PointOnObject", 6, 3, -2))
sketch7.addConstraint(Sketcher.Constraint("PointOnObject", 1, 2, -2))
sketch7.addConstraint(Sketcher.Constraint("PointOnObject", 4, 2, -2))
sketch7.addConstraint(Sketcher.Constraint("Parallel", 1, 4))
sketch7.addConstraint(Sketcher.Constraint("Parallel", 2, 5))
sketch7.addConstraint(Sketcher.Constraint("Diameter", 6, 3.1))
sketch7.addConstraint(Sketcher.Constraint("DistanceY", -1, 1, 6, 3, 5.0))
sketch7.addConstraint(Sketcher.Constraint("DistanceY", 4, 2, 1, 2, 6.3))
sketch7.addConstraint(Sketcher.Constraint("Angle", 1, Q("150.0002 deg")))
sketch7.addConstraint(Sketcher.Constraint("DistanceY", 0, 1, 0, 2, 3.15))
sketch7.addConstraint(Sketcher.Constraint("DistanceY", -1, 1, 1, 2, 8.15))
sketch7.setExpression("Constraints[14]", "Params.sketch7_diameter")
sketch7.setExpression("Constraints[18]", "Params.sketch7_height")
pad5 = body.newObject("PartDesign::Pad", "Pad004")
pad5.Profile = sketch7
pad5.setExpression("Length", "Params.pad5_length")
pad5.Reversed = True

# Sketch on XY plane
sketch8 = body.newObject("Sketcher::SketchObject", "Sketch007")
sketch8.AttachmentSupport = (doc.getObject("XY_Plane"), [""])
sketch8.MapMode = "FlatFace"
sketch8.AttachmentOffset = App.Placement(App.Vector(0, 0, 70.2072), App.Rotation())
sketch8.addGeometry(Part.ArcOfCircle(Part.Circle(App.Vector(0, 5, 0), App.Vector(0, 0, 1), 3.15), math.radians(-29.999818), math.radians(29.999818)), False)
sketch8.addGeometry(Part.LineSegment(App.Vector(2.728, 3.425, 0), App.Vector(2.728, 6.575, 0)), False)
sketch8.addGeometry(Part.LineSegment(App.Vector(0, 8.15, 0), App.Vector(2.728, 6.575, 0)), False)
sketch8.addGeometry(Part.ArcOfCircle(Part.Circle(App.Vector(0, 5, 0), App.Vector(0, 0, 1), 3.15), math.radians(29.999818), math.radians(90)), False)
sketch8.addGeometry(Part.ArcOfCircle(Part.Circle(App.Vector(0, 5, 0), App.Vector(0, 0, 1), 3.15), math.radians(-90), math.radians(-29.999818)), False)
sketch8.addGeometry(Part.LineSegment(App.Vector(0, 1.85, 0), App.Vector(2.728, 3.425, 0)), False)
sketch8.addGeometry(Part.LineSegment(App.Vector(-2.728, 6.575, 0), App.Vector(0, 8.15, 0)), False)
sketch8.addGeometry(Part.ArcOfCircle(Part.Circle(App.Vector(0, 5, 0), App.Vector(0, 0, 1), 3.15), math.radians(90), math.radians(150.000182)), False)
sketch8.addGeometry(Part.ArcOfCircle(Part.Circle(App.Vector(0, 5, 0), App.Vector(0, 0, 1), 3.15), math.radians(-150.000182), math.radians(-90)), False)
sketch8.addGeometry(Part.LineSegment(App.Vector(0, 1.85, 0), App.Vector(-2.728, 3.425, 0)), False)
sketch8.addGeometry(Part.LineSegment(App.Vector(-2.728, 3.425, 0), App.Vector(-2.728, 6.575, 0)), False)
sketch8.addGeometry(Part.ArcOfCircle(Part.Circle(App.Vector(0, 5, 0), App.Vector(0, 0, 1), 3.15), math.radians(150.000182), math.radians(209.999818)), False)
sketch8.addConstraint(Sketcher.Constraint("Coincident", 0, 1, 1, 1))
sketch8.addConstraint(Sketcher.Constraint("Coincident", 1, 2, 0, 2))
sketch8.addConstraint(Sketcher.Constraint("Coincident", 2, 1, 3, 2))
sketch8.addConstraint(Sketcher.Constraint("Coincident", 3, 1, 2, 2))
sketch8.addConstraint(Sketcher.Constraint("Coincident", 4, 1, 5, 1))
sketch8.addConstraint(Sketcher.Constraint("Coincident", 5, 2, 4, 2))
sketch8.addConstraint(Sketcher.Constraint("Coincident", 6, 1, 7, 2))
sketch8.addConstraint(Sketcher.Constraint("Coincident", 7, 1, 6, 2))
sketch8.addConstraint(Sketcher.Constraint("Coincident", 8, 1, 9, 2))
sketch8.addConstraint(Sketcher.Constraint("Coincident", 9, 1, 8, 2))
sketch8.addConstraint(Sketcher.Constraint("Coincident", 10, 1, 11, 2))
sketch8.addConstraint(Sketcher.Constraint("Coincident", 11, 1, 10, 2))
sketch8.addConstraint(Sketcher.Constraint("Vertical", 1))
sketch8.addConstraint(Sketcher.Constraint("Vertical", 10))
sketch8.addConstraint(Sketcher.Constraint("Coincident", 3, 3, 0, 3))
sketch8.addConstraint(Sketcher.Constraint("Coincident", 4, 3, 0, 3))
sketch8.addConstraint(Sketcher.Constraint("Coincident", 7, 3, 0, 3))
sketch8.addConstraint(Sketcher.Constraint("Coincident", 8, 3, 0, 3))
sketch8.addConstraint(Sketcher.Constraint("Coincident", 11, 3, 0, 3))
sketch8.addConstraint(Sketcher.Constraint("Coincident", 3, 1, 1, 2))
sketch8.addConstraint(Sketcher.Constraint("Coincident", 5, 2, 0, 1))
sketch8.addConstraint(Sketcher.Constraint("Coincident", 7, 1, 2, 1))
sketch8.addConstraint(Sketcher.Constraint("Coincident", 9, 1, 4, 1))
sketch8.addConstraint(Sketcher.Constraint("Coincident", 10, 1, 8, 1))
sketch8.addConstraint(Sketcher.Constraint("Symmetric", 1, 2, 6, 1, -2))
sketch8.addConstraint(Sketcher.Constraint("PointOnObject", 2, 1, -2))
sketch8.addConstraint(Sketcher.Constraint("PointOnObject", 4, 1, -2))
sketch8.addConstraint(Sketcher.Constraint("Parallel", 2, 9))
sketch8.addConstraint(Sketcher.Constraint("Radius", 0, 3.15))
sketch8.addConstraint(Sketcher.Constraint("DistanceY", -1, 1, 0, 3, 5.0))
sketch8.addConstraint(Sketcher.Constraint("Angle", 2, Q("-29.9998 deg")))
sketch8.setExpression("Constraints[28]", "Params.sketch8_radius")
pad6 = body.newObject("PartDesign::Pad", "Pad005")
pad6.Profile = sketch8
pad6.setExpression("Length", "Params.pad6_length")
pad6.Reversed = True

# Sketch on XZ plane
sketch9 = body.newObject("Sketcher::SketchObject", "Sketch008")
sketch9.AttachmentSupport = (doc.getObject("XZ_Plane"), [""])
sketch9.MapMode = "FlatFace"
sketch9.AttachmentOffset = App.Placement(App.Vector(0, 0, -14), App.Rotation())
sketch9.addGeometry(Part.LineSegment(App.Vector(-12.75, 42.2072, 0), App.Vector(-12.75, 70.2072, 0)), False)
sketch9.addGeometry(Part.LineSegment(App.Vector(-12.75, 70.2072, 0), App.Vector(12.75, 70.2072, 0)), False)
sketch9.addGeometry(Part.LineSegment(App.Vector(12.75, 70.2072, 0), App.Vector(12.75, 42.2072, 0)), False)
sketch9.addGeometry(Part.LineSegment(App.Vector(12.75, 42.2072, 0), App.Vector(10.25, 42.2072, 0)), False)
sketch9.addGeometry(Part.LineSegment(App.Vector(10.25, 42.2072, 0), App.Vector(10.25, 67.2072, 0)), False)
sketch9.addGeometry(Part.LineSegment(App.Vector(10.25, 67.2072, 0), App.Vector(-10.25, 67.2072, 0)), False)
sketch9.addGeometry(Part.LineSegment(App.Vector(-10.25, 67.2072, 0), App.Vector(-10.25, 42.2072, 0)), False)
sketch9.addGeometry(Part.LineSegment(App.Vector(-10.25, 42.2072, 0), App.Vector(-12.75, 42.2072, 0)), False)
sketch9.addConstraint(Sketcher.Constraint("Coincident", 0, 2, 1, 1))
sketch9.addConstraint(Sketcher.Constraint("Coincident", 1, 2, 2, 1))
sketch9.addConstraint(Sketcher.Constraint("Coincident", 2, 2, 3, 1))
sketch9.addConstraint(Sketcher.Constraint("Coincident", 3, 2, 4, 1))
sketch9.addConstraint(Sketcher.Constraint("Coincident", 4, 2, 5, 1))
sketch9.addConstraint(Sketcher.Constraint("Coincident", 5, 2, 6, 1))
sketch9.addConstraint(Sketcher.Constraint("Coincident", 6, 2, 7, 1))
sketch9.addConstraint(Sketcher.Constraint("Coincident", 7, 2, 0, 1))
sketch9.addConstraint(Sketcher.Constraint("Vertical", 0))
sketch9.addConstraint(Sketcher.Constraint("Horizontal", 1))
sketch9.addConstraint(Sketcher.Constraint("Vertical", 2))
sketch9.addConstraint(Sketcher.Constraint("Horizontal", 3))
sketch9.addConstraint(Sketcher.Constraint("Vertical", 4))
sketch9.addConstraint(Sketcher.Constraint("Horizontal", 5))
sketch9.addConstraint(Sketcher.Constraint("Vertical", 6))
sketch9.addConstraint(Sketcher.Constraint("Horizontal", 7))
sketch9.addConstraint(Sketcher.Constraint("Symmetric", 3, 2, 6, 2, -2))
sketch9.addConstraint(Sketcher.Constraint("Equal", 3, 7))
sketch9.addConstraint(Sketcher.Constraint("DistanceY", 0, 1, 0, 2, 28.0))
sketch9.addConstraint(Sketcher.Constraint("DistanceY", 4, 1, 4, 2, 25.0))
sketch9.addConstraint(Sketcher.Constraint("DistanceX", 1, 1, 1, 2, 25.5))
sketch9.addConstraint(Sketcher.Constraint("DistanceX", 3, 2, 3, 1, 2.5))
sketch9.addConstraint(Sketcher.Constraint("DistanceY", -1, 1, 0, 2, 70.2072))
sketch9.setExpression("Constraints[18]", "Params.sketch9_height")
sketch9.setExpression("Constraints[19]", "Params.sketch9_height2")
sketch9.setExpression("Constraints[20]", "Params.sketch9_width")
sketch9.setExpression("Constraints[21]", "Params.sketch9_width2")
pocket3 = body.newObject("PartDesign::Pocket", "Pocket002")
pocket3.Profile = sketch9
pocket3.setExpression("Length", "Params.pocket3_length")
pocket3.Reversed = True
doc.recompute()

fillet = body.newObject("PartDesign::Fillet", "Fillet")
fillet.Base = (pocket3, edges_at(pocket3, [
    (0, 12.5, 70.207),
    (12.75, 5.25, 70.207),
    (0, -2, 70.207),
    (-12.75, 5.25, 70.207),
]))
fillet.setExpression("Radius", "Params.fillet_radius")
doc.recompute()

fillet2 = body.newObject("PartDesign::Fillet", "Fillet001")
fillet2.Base = (fillet, edges_at(fillet, [
    (-12.457, 12.207, 69.914),
    (-12.457, -1.707, 69.914),
    (-12.75, -2, 55.707),
    (12.457, -1.707, 69.914),
    (12.75, -2, 55.707),
    (12.457, 12.207, 69.914),
]))
fillet2.setExpression("Radius", "Params.fillet2_radius")

doc.recompute()
